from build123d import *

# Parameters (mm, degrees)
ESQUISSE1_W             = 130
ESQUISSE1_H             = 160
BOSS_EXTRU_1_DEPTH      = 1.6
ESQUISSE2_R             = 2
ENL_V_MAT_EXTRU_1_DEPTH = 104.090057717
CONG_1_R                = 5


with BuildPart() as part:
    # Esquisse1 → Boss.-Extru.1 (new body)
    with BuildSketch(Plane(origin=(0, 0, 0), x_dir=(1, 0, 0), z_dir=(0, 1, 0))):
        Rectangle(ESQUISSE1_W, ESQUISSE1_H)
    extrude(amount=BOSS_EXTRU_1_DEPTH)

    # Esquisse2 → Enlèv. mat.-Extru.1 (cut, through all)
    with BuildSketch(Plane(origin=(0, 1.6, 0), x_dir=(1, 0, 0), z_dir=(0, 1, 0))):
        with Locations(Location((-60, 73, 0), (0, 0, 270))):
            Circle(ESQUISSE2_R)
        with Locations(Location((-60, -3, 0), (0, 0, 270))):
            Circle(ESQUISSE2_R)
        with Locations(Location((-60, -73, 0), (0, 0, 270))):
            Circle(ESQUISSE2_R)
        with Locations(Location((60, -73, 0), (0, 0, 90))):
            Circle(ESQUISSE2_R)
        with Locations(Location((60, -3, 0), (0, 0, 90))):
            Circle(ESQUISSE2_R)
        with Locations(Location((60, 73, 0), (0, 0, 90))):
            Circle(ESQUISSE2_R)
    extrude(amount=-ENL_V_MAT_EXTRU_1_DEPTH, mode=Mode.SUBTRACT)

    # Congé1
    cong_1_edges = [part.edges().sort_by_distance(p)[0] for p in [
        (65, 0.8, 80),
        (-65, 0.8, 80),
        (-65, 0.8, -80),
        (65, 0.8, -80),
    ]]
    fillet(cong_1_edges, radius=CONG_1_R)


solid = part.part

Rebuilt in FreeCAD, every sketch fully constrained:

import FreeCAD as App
import Part
import Sketcher
from FreeCAD import Vector


def edges_at(feature, points):
    """Names of the edges that pass closest to the given points."""
    edges = feature.Shape.Edges
    near = lambda p: min(range(len(edges)), key=lambda i: edges[i].distToShape(Part.Vertex(*p))[0])
    return sorted({f"Edge{near(p) + 1}" for p in points})

doc = App.newDocument("Part")
params = doc.addObject("Spreadsheet::Sheet", "Params")
for row, (alias, value) in enumerate([
    ("sketch1_width", "130 mm"),
    ("sketch1_height", "160 mm"),
    ("pad1_length", "1.6 mm"),
    ("sketch2_diameter", "4 mm"),
    ("fillet_radius", "5 mm"),
], start=1):
    params.set(f"A{row}", alias)
    params.set(f"B{row}", "=" + value)
    params.setAlias(f"B{row}", alias)

body = doc.addObject("PartDesign::Body", "Body")

# Sketch on XZ plane
sketch1 = doc.addObject("Sketcher::SketchObject", "Sketch")
body.addObject(sketch1)
sketch1.AttachmentSupport = (doc.XZ_Plane, [""])
sketch1.MapMode = "FlatFace"
sketch1.addGeometry([
    Part.LineSegment(Vector(-65, -80, 0), Vector(-65, 80, 0)),
    Part.LineSegment(Vector(-65, 80, 0), Vector(65, 80, 0)),
    Part.LineSegment(Vector(65, 80, 0), Vector(65, -80, 0)),
    Part.LineSegment(Vector(65, -80, 0), Vector(-65, -80, 0)),
], False)
sketch1.addConstraint([
    Sketcher.Constraint("Coincident", 0, 2, 1, 1),
    Sketcher.Constraint("Coincident", 1, 2, 2, 1),
    Sketcher.Constraint("Coincident", 2, 2, 3, 1),
    Sketcher.Constraint("Coincident", 3, 2, 0, 1),
    Sketcher.Constraint("Vertical", 0),
    Sketcher.Constraint("Horizontal", 1),
    Sketcher.Constraint("Vertical", 2),
    Sketcher.Constraint("Horizontal", 3),
    Sketcher.Constraint("Symmetric", 0, 2, 2, 2, -1, 1),
    Sketcher.Constraint("DistanceX", 1, 1, 1, 2, 130.0),
    Sketcher.Constraint("DistanceY", 0, 1, 0, 2, 160.0),
])
sketch1.setExpression("Constraints[9]", "Params.sketch1_width")
sketch1.setExpression("Constraints[10]", "Params.sketch1_height")
pad1 = doc.addObject("PartDesign::Pad", "Pad")
body.addObject(pad1)
pad1.Profile = sketch1
pad1.setExpression("Length", "Params.pad1_length")
pad1.Reversed = True

# Sketch on XZ plane
sketch2 = doc.addObject("Sketcher::SketchObject", "Sketch001")
body.addObject(sketch2)
sketch2.AttachmentSupport = (doc.XZ_Plane, [""])
sketch2.MapMode = "FlatFace"
sketch2.AttachmentOffset = App.Placement(Vector(0, 0, -1.6), App.Rotation())
sketch2.addGeometry([
    Part.Circle(Vector(-60, -73, 0), Vector(0, 0, 1), 2),  # 0
    Part.Circle(Vector(-60, 3, 0), Vector(0, 0, 1), 2),  # 1
    Part.Circle(Vector(-60, 73, 0), Vector(0, 0, 1), 2),  # 2
    Part.Circle(Vector(60, 73, 0), Vector(0, 0, 1), 2),  # 3
    Part.Circle(Vector(60, 3, 0), Vector(0, 0, 1), 2),  # 4
    Part.Circle(Vector(60, -73, 0), Vector(0, 0, 1), 2),  # 5
], False)
sketch2.addConstraint([
    Sketcher.Constraint("Equal", 0, 1),
    Sketcher.Constraint("Equal", 1, 2),
    Sketcher.Constraint("Equal", 2, 3),
    Sketcher.Constraint("Equal", 3, 4),
    Sketcher.Constraint("Equal", 4, 5),
    Sketcher.Constraint("Symmetric", 0, 3, 3, 3, -1, 1),
    Sketcher.Constraint("Symmetric", 2, 3, 5, 3, -1, 1),
    Sketcher.Constraint("Symmetric", 2, 3, 3, 3, -2),
    Sketcher.Constraint("Symmetric", 1, 3, 4, 3, -2),
    Sketcher.Constraint("Vertical", 0, 3, 1, 3),
    Sketcher.Constraint("Diameter", 0, 4.0),
    Sketcher.Constraint("DistanceX", 0, 3, -1, 1, 60.0),
    Sketcher.Constraint("DistanceY", 0, 3, -1, 1, 73.0),
    Sketcher.Constraint("DistanceY", -1, 1, 1, 3, 3.0),
])
sketch2.setExpression("Constraints[10]", "Params.sketch2_diameter")
pocket1 = doc.addObject("PartDesign::Pocket", "Pocket")
body.addObject(pocket1)
pocket1.Profile = sketch2
pocket1.Type = "ThroughAll"
pocket1.Reversed = True
doc.recompute()

fillet = doc.addObject("PartDesign::Fillet", "Fillet")
body.addObject(fillet)
fillet.Base = (pocket1, edges_at(pocket1, [
    (65, 0.8, 80),
    (-65, 0.8, 80),
    (-65, 0.8, -80),
    (65, 0.8, -80),
]))
fillet.setExpression("Radius", "Params.fillet_radius")

doc.recompute()
